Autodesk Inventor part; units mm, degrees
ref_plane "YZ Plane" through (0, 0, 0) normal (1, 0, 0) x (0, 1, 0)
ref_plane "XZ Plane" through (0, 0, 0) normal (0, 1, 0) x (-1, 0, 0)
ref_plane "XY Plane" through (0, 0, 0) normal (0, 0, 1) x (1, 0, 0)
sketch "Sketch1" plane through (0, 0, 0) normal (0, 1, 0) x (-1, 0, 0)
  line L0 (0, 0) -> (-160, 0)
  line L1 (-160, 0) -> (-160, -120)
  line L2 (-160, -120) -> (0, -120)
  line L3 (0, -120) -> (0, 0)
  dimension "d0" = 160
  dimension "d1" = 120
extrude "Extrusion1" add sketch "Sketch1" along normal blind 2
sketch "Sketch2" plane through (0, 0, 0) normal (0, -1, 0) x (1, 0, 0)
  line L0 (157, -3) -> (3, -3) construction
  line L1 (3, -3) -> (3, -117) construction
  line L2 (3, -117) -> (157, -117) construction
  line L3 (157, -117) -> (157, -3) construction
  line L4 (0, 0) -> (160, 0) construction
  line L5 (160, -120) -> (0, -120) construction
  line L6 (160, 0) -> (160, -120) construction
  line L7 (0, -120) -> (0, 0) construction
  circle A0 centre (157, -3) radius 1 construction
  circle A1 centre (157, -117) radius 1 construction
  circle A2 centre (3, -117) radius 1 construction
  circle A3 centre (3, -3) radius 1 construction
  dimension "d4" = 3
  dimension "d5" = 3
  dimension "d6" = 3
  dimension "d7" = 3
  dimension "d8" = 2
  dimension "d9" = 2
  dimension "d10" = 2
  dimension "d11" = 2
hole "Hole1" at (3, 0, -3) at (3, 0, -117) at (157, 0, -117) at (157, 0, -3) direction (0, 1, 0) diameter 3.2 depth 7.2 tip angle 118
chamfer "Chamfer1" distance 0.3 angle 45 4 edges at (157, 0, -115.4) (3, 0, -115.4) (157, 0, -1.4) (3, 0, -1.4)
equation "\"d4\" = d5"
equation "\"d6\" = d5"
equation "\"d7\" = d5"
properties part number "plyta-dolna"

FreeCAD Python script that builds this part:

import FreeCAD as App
import Part
import Sketcher


def edges_at(feature, points):
    """Names of the edges that pass closest to the given points."""
    edges = feature.Shape.Edges
    near = lambda p: min(range(len(edges)), key=lambda i: edges[i].distToShape(Part.Vertex(*p))[0])
    return sorted({f"Edge{near(p) + 1}" for p in points})


def add_polygon(sketch, points):
    """Adds a closed chain of lines whose ends are joined by coincident constraints."""
    first, n = sketch.GeometryCount, len(points)
    for a, b in zip(points, points[1:] + points[:1]):
        sketch.addGeometry(Part.LineSegment(App.Vector(*a, 0), App.Vector(*b, 0)), False)
    for i in range(n):
        sketch.addConstraint(Sketcher.Constraint("Coincident", first + i, 2, first + (i + 1) % n, 1))

doc = App.newDocument("Part")
body = doc.addObject("PartDesign::Body", "Body")

# Sketch on XZ plane
sketch1 = doc.addObject("Sketcher::SketchObject", "Sketch")
body.addObject(sketch1)
sketch1.AttachmentSupport = (doc.XZ_Plane, [""])
sketch1.MapMode = "FlatFace"
add_polygon(sketch1, [(0, -120), (0, 0), (160, 0), (160, -120)])  # lines 0-3
sketch1.addConstraint(Sketcher.Constraint("Vertical", 0))
sketch1.addConstraint(Sketcher.Constraint("Horizontal", 1))
sketch1.addConstraint(Sketcher.Constraint("Vertical", 2))
sketch1.addConstraint(Sketcher.Constraint("Horizontal", 3))
sketch1.addConstraint(Sketcher.Constraint("Coincident", 0, 2, -1, 1))
sketch1.addConstraint(Sketcher.Constraint("DistanceX", 1, 1, 1, 2, 160.0))
sketch1.addConstraint(Sketcher.Constraint("DistanceY", 0, 1, 0, 2, 120.0))
pad1 = doc.addObject("PartDesign::Pad", "Pad")
body.addObject(pad1)
pad1.Profile = sketch1
pad1.Length = 2
pad1.Reversed = True

# Sketch on XZ plane
sketch2 = doc.addObject("Sketcher::SketchObject", "Sketch001")
body.addObject(sketch2)
sketch2.AttachmentSupport = (doc.XZ_Plane, [""])
sketch2.MapMode = "FlatFace"
sketch2.addGeometry(Part.Circle(App.Vector(3, -3, 0), App.Vector(0, 0, 1), 1.6), False)
sketch2.addGeometry(Part.Circle(App.Vector(3, -117, 0), App.Vector(0, 0, 1), 1.6), False)
sketch2.addGeometry(Part.Circle(App.Vector(157, -117, 0), App.Vector(0, 0, 1), 1.6), False)
sketch2.addGeometry(Part.Circle(App.Vector(157, -3, 0), App.Vector(0, 0, 1), 1.6), False)
sketch2.addConstraint(Sketcher.Constraint("Equal", 0, 1))
sketch2.addConstraint(Sketcher.Constraint("Equal", 1, 2))
sketch2.addConstraint(Sketcher.Constraint("Equal", 2, 3))
sketch2.addConstraint(Sketcher.Constraint("Horizontal", 1, 3, 2, 3))
sketch2.addConstraint(Sketcher.Constraint("Horizontal", 0, 3, 3, 3))
sketch2.addConstraint(Sketcher.Constraint("Vertical", 0, 3, 1, 3))
sketch2.addConstraint(Sketcher.Constraint("Vertical", 2, 3, 3, 3))
sketch2.addConstraint(Sketcher.Constraint("Diameter", 0, 3.2))
sketch2.addConstraint(Sketcher.Constraint("DistanceX", -1, 1, 0, 3, 3.0))
sketch2.addConstraint(Sketcher.Constraint("DistanceY", 0, 3, -1, 1, 3.0))
sketch2.addConstraint(Sketcher.Constraint("DistanceY", 1, 3, -1, 1, 117.0))
sketch2.addConstraint(Sketcher.Constraint("DistanceX", -1, 1, 2, 3, 157.0))
doc.recompute()
hole = doc.addObject("PartDesign::Hole", "Hole")
body.addObject(hole)
hole.Profile = sketch2
hole.ThreadType = "None"
hole.Diameter = 3.2
hole.DepthType = "Dimension"
hole.Depth = 7.2
hole.DrillPoint = "Angled"
hole.DrillPointAngle = 118
doc.recompute()

chamfer = doc.addObject("PartDesign::Chamfer", "Chamfer")
body.addObject(chamfer)
chamfer.Base = (hole, edges_at(hole, [
    (157, 0, -115.4),
    (3, 0, -115.4),
    (157, 0, -1.4),
    (3, 0, -1.4),
]))
chamfer.Size = 0.3

doc.recompute()
